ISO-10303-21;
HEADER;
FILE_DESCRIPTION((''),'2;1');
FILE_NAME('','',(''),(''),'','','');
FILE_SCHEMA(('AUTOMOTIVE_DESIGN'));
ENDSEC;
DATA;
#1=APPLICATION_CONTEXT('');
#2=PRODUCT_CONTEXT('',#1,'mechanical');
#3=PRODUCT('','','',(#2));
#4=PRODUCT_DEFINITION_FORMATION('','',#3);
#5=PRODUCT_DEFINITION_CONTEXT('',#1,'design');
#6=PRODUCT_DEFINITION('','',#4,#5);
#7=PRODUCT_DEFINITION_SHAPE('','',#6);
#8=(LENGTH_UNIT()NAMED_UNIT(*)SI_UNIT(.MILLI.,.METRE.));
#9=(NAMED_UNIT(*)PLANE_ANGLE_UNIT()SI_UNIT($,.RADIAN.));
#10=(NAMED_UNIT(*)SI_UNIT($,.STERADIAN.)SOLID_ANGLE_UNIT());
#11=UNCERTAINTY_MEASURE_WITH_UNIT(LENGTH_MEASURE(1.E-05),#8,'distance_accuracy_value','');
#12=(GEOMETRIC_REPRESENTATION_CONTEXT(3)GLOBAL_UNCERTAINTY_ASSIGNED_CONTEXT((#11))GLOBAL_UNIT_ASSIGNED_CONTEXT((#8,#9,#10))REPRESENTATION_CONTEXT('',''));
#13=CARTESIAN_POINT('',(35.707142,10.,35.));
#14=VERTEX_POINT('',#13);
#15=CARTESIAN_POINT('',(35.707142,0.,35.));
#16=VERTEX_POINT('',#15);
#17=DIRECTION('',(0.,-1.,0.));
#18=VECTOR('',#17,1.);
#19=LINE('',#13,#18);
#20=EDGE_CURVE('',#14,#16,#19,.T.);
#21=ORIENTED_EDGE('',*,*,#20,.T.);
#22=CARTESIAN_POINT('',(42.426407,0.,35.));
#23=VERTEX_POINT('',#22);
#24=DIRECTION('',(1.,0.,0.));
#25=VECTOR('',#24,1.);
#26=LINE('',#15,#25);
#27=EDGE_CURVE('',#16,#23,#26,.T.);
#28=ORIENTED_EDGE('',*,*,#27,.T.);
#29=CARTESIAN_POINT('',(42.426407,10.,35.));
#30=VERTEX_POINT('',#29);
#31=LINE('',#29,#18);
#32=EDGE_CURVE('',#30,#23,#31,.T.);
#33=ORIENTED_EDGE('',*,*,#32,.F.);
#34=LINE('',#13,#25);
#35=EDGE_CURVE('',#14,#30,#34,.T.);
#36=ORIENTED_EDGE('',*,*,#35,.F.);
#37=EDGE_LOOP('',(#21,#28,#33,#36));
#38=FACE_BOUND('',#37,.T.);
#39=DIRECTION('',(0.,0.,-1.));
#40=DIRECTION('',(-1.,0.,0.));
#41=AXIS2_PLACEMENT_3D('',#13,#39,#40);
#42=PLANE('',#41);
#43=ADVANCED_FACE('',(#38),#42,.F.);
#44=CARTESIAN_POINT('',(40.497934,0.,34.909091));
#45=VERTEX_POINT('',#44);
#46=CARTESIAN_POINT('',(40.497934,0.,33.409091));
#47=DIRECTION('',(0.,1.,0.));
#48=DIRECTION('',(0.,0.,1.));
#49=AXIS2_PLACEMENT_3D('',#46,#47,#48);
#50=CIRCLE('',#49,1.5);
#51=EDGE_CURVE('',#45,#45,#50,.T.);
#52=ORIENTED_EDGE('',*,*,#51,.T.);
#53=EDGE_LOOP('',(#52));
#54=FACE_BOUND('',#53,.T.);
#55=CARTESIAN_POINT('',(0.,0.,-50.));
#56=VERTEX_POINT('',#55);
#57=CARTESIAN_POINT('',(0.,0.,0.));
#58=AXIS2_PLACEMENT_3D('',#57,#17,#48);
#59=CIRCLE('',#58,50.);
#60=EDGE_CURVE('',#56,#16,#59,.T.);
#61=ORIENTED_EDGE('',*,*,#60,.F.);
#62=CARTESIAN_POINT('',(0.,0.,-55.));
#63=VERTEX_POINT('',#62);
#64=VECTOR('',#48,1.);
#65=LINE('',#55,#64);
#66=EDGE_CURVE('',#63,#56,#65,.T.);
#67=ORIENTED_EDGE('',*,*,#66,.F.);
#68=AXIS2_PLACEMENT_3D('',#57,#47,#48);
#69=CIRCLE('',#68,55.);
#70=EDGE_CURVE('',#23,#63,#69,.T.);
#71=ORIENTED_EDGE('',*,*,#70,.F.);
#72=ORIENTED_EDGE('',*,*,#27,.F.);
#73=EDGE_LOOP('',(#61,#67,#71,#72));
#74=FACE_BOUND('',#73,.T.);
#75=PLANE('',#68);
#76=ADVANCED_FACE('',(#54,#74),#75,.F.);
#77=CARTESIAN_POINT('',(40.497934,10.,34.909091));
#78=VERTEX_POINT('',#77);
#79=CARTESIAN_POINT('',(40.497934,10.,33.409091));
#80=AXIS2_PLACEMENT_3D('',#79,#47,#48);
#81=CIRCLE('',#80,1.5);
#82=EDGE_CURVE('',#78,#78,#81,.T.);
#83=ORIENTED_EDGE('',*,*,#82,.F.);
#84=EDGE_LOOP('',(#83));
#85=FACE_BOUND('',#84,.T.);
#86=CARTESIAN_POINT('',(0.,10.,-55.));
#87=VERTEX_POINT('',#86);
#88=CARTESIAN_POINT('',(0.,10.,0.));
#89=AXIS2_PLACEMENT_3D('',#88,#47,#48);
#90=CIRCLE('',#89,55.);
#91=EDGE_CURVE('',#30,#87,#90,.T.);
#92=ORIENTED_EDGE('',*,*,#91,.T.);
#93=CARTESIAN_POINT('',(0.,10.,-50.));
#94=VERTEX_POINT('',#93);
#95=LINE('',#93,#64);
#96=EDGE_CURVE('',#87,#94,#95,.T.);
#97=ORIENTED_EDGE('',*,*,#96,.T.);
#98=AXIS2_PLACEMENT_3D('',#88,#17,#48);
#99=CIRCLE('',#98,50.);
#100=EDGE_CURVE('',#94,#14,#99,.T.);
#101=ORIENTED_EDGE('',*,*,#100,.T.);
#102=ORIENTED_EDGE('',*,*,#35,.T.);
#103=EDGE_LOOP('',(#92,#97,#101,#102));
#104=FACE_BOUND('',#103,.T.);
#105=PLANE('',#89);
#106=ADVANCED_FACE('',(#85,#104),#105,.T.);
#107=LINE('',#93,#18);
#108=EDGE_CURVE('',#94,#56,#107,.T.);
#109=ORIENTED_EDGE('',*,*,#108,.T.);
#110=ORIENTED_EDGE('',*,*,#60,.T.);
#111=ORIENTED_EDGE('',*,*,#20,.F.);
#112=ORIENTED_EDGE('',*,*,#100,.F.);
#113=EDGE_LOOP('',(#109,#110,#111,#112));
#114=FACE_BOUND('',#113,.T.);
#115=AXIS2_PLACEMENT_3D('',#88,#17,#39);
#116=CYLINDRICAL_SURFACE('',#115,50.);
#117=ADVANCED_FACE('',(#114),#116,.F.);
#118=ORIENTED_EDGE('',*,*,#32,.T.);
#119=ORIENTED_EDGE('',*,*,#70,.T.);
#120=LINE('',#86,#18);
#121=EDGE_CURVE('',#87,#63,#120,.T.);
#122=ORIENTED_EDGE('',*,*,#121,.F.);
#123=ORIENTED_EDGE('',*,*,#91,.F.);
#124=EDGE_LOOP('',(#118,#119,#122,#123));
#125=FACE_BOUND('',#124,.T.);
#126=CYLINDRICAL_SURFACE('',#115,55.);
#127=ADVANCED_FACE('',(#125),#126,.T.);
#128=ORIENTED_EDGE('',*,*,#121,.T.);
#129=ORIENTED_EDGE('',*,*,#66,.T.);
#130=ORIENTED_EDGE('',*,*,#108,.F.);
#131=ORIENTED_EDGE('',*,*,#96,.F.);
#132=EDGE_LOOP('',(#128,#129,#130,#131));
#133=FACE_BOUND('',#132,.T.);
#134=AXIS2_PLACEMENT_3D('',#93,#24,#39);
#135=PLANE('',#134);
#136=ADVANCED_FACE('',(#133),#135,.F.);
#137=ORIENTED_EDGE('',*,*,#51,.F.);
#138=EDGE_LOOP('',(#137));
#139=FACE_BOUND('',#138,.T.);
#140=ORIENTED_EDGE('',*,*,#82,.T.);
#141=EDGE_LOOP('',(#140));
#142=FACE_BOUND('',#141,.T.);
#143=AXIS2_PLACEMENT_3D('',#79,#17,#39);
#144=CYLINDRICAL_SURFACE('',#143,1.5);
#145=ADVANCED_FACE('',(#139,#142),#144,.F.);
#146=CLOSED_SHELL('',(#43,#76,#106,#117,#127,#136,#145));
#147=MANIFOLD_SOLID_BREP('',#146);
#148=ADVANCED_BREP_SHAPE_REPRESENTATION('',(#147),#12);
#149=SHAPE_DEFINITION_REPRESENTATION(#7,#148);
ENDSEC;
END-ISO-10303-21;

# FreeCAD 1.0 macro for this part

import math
import FreeCAD as App
import Part
import Sketcher

V = App.Vector
Q = App.Units.Quantity

doc = App.newDocument("Part")
body = doc.addObject("PartDesign::Body", "Body")

# Sketch on XZ plane
sketch1 = body.newObject("Sketcher::SketchObject", "Sketch")
sketch1.AttachmentSupport = (doc.getObject("XZ_Plane"), [""])
sketch1.MapMode = "FlatFace"
sketch1.addGeometry([
    Part.LineSegment(V(0, -55, 0), V(0, -50, 0)),  # 0
    Part.ArcOfCircle(Part.Circle(V(0, 0, 0), V(0, 0, 1), 50), math.radians(-90), math.radians(44.427004)),  # 1
    Part.LineSegment(V(35.707142, 35, 0), V(42.426407, 35, 0)),  # 2
    Part.ArcOfCircle(Part.Circle(V(0, 0, 0), V(0, 0, 1), 55), math.radians(-90), math.radians(39.521196)),  # 3
    Part.Circle(V(40.497934, 33.409091, 0), V(0, 0, 1), 1.5),  # 4
], False)
sketch1.addConstraint([
    Sketcher.Constraint("Coincident", 0, 2, 1, 1),
    Sketcher.Constraint("Coincident", 1, 2, 2, 1),
    Sketcher.Constraint("Coincident", 2, 2, 3, 2),
    Sketcher.Constraint("Coincident", 3, 1, 0, 1),
    Sketcher.Constraint("Vertical", 0),
    Sketcher.Constraint("Horizontal", 2),
    Sketcher.Constraint("Coincident", 1, 3, -1, 1),
    Sketcher.Constraint("Coincident", 3, 3, -1, 1),
    Sketcher.Constraint("PointOnObject", 0, 2, -2),
    Sketcher.Constraint("Diameter", 4, Q("3 mm")),
    Sketcher.Constraint("Radius", 1, Q("50 mm")),
    Sketcher.Constraint("Radius", 3, Q("55 mm")),
    Sketcher.Constraint("DistanceY", -1, 1, 1, 2, Q("35 mm")),
    Sketcher.Constraint("DistanceY", -1, 1, 4, 3, Q("33.409091 mm")),
    Sketcher.Constraint("DistanceX", 1, 2, 4, 3, Q("4.790792 mm")),
])
pad1 = body.newObject("PartDesign::Pad", "Pad")
pad1.Profile = sketch1
pad1.Length = 10
pad1.Reversed = True

doc.recompute()
